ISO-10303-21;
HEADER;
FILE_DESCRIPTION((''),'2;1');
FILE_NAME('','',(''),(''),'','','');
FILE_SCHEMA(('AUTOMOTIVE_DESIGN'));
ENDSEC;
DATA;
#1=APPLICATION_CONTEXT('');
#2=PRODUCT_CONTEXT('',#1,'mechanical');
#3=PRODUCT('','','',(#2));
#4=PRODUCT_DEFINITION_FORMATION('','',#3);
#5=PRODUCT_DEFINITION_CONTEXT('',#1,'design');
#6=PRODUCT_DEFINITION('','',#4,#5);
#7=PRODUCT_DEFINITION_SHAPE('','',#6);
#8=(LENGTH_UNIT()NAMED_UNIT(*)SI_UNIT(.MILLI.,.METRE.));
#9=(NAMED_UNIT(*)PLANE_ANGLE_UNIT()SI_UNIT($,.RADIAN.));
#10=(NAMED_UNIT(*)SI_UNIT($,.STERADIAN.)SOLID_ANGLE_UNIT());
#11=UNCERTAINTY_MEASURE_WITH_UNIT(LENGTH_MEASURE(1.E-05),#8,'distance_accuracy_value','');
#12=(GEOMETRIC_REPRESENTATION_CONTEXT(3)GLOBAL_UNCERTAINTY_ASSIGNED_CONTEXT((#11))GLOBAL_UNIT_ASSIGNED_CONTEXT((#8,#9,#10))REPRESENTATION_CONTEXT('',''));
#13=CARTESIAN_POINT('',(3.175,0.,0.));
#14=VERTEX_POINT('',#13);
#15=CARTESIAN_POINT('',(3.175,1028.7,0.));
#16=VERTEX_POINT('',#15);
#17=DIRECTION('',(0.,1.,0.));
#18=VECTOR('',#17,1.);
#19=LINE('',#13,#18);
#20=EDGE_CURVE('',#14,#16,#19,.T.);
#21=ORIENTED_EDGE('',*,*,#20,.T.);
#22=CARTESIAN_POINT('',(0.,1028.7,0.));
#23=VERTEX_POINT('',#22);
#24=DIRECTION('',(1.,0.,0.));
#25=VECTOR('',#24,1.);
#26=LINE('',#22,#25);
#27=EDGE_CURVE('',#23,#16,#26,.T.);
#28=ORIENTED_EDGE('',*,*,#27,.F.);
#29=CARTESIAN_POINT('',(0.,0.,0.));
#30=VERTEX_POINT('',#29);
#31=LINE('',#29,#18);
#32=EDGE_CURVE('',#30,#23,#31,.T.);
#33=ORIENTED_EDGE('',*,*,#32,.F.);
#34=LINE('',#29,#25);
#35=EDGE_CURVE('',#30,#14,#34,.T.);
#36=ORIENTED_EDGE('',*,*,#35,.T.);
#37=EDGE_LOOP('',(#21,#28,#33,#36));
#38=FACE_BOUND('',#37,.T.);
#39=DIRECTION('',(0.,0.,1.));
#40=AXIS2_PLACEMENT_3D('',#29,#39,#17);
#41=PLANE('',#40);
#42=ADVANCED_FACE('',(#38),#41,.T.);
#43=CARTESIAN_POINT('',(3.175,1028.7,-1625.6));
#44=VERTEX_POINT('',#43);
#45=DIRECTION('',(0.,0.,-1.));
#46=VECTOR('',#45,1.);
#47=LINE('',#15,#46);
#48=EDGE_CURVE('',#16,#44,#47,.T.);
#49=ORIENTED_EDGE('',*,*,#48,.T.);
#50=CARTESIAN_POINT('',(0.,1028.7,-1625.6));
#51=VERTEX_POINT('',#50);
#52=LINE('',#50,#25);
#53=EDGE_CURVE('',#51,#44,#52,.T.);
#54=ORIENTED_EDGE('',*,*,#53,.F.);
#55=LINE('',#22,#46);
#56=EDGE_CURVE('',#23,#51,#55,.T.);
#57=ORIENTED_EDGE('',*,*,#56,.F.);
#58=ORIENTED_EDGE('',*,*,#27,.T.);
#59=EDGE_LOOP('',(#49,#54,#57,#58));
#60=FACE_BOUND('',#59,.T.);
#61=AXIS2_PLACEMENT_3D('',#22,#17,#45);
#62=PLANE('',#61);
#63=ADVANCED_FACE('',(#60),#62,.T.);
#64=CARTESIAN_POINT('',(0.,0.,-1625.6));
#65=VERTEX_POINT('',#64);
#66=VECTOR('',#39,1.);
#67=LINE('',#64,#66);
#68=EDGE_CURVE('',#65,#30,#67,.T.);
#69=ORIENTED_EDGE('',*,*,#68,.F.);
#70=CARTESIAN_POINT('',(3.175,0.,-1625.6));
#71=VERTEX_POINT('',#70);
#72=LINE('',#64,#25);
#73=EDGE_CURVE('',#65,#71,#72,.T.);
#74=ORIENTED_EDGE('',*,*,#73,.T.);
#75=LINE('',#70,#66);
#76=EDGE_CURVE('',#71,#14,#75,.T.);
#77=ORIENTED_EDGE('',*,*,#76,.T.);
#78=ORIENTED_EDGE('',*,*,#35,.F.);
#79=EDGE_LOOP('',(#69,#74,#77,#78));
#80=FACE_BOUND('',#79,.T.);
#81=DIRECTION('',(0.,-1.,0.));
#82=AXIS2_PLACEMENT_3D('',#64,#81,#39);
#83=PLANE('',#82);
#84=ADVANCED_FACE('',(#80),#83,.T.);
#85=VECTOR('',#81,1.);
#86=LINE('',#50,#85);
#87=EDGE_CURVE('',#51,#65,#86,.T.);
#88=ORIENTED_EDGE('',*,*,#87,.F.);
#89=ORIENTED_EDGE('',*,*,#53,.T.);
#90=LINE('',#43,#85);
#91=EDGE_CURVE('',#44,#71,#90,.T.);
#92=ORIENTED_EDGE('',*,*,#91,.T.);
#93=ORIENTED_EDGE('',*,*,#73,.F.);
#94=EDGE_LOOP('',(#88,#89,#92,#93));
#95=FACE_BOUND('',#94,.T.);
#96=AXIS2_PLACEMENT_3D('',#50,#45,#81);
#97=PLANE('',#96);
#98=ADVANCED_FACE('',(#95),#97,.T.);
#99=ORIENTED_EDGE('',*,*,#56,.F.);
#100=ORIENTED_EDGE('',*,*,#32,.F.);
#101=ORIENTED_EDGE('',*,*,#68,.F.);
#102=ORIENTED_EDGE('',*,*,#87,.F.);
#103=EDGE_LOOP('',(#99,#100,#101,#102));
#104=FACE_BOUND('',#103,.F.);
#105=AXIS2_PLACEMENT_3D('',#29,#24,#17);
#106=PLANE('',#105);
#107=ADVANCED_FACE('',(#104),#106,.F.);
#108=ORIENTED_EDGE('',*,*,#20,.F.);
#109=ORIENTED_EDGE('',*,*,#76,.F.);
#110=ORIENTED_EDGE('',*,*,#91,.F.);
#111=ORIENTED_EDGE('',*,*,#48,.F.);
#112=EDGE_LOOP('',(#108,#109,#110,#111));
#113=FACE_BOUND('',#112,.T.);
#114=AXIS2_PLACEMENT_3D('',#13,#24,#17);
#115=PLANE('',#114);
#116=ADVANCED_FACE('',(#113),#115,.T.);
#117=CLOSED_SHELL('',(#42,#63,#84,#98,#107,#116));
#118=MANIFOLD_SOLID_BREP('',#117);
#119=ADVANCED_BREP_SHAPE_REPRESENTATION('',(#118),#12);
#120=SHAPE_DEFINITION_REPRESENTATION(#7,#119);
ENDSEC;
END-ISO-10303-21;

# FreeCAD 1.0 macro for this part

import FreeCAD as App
import Part
import Sketcher
Q = App.Units.Quantity

doc = App.newDocument("Part")
body = doc.addObject("PartDesign::Body", "Body")

sketch1 = body.newObject("Sketcher::SketchObject", "Sketch")
sketch1.AttachmentSupport = (doc.getObject("YZ_Plane"), [""])
sketch1.MapMode = "FlatFace"
sketch1.addGeometry([
    Part.LineSegment(App.Vector(1028.7, 0, 0), App.Vector(0, 0, 0)),
    Part.LineSegment(App.Vector(0, 0, 0), App.Vector(0, -1625.6, 0)),
    Part.LineSegment(App.Vector(0, -1625.6, 0), App.Vector(1028.7, -1625.6, 0)),
    Part.LineSegment(App.Vector(1028.7, -1625.6, 0), App.Vector(1028.7, 0, 0)),
], False)
sketch1.addConstraint([
    Sketcher.Constraint("Coincident", 0, 2, 1, 1),
    Sketcher.Constraint("Coincident", 1, 2, 2, 1),
    Sketcher.Constraint("Coincident", 2, 2, 3, 1),
    Sketcher.Constraint("Coincident", 3, 2, 0, 1),
    Sketcher.Constraint("Horizontal", 0),
    Sketcher.Constraint("Vertical", 1),
    Sketcher.Constraint("Horizontal", 2),
    Sketcher.Constraint("Vertical", 3),
    Sketcher.Constraint("Coincident", 0, 2, -1, 1),
    Sketcher.Constraint("DistanceY", 1, 2, 1, 1, Q("64 in")),
    Sketcher.Constraint("DistanceX", 0, 2, 0, 1, Q("40.5 in")),
])
pad1 = body.newObject("PartDesign::Pad", "Pad")
pad1.Profile = sketch1
pad1.Length = Q("0.125 in")

doc.recompute()
